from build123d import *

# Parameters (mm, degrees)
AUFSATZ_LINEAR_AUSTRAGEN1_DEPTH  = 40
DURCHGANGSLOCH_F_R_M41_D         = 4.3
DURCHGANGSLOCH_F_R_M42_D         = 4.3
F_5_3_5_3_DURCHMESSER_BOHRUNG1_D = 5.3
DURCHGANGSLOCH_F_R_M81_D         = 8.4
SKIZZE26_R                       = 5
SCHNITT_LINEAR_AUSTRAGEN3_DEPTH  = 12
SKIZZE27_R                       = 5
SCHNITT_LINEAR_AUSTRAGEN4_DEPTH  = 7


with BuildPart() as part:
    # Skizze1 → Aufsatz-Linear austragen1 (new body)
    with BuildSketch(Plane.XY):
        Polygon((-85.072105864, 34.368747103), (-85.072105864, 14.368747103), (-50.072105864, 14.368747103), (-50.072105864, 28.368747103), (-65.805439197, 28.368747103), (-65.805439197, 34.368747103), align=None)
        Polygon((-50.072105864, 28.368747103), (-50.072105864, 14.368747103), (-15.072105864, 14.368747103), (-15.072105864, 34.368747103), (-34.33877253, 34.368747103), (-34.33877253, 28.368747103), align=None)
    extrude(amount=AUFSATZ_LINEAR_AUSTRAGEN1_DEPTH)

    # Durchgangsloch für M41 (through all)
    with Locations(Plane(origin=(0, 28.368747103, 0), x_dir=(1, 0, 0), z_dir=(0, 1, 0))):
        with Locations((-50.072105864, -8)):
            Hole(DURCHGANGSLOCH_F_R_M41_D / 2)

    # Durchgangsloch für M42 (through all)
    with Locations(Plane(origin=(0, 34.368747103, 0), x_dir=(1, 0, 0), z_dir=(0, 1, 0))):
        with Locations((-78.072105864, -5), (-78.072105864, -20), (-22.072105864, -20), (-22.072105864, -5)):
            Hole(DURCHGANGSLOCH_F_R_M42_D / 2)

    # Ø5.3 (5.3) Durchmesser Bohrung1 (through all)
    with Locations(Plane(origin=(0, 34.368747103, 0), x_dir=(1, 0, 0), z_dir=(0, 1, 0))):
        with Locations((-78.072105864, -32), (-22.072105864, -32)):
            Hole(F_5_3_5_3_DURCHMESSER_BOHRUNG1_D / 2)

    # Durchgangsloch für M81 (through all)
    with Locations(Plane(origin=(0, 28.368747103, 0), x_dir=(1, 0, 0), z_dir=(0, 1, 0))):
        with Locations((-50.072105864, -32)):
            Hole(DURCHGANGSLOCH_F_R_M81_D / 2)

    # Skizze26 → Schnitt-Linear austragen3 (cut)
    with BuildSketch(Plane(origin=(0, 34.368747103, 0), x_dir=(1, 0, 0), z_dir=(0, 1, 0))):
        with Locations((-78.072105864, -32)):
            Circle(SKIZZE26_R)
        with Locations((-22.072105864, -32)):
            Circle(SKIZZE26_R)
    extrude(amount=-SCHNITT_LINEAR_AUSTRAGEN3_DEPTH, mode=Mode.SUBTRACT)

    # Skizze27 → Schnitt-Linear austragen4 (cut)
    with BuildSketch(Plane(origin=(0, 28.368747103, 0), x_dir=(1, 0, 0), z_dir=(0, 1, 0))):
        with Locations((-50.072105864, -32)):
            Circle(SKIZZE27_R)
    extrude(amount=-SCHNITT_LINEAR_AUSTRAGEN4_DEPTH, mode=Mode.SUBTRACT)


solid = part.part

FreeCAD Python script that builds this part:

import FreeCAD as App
import Part
import Sketcher

V = App.Vector
Q = App.Units.Quantity

doc = App.newDocument("Part")
body = doc.addObject("PartDesign::Body", "Body")

# Sketch on XY plane
sketch1 = body.newObject("Sketcher::SketchObject", "Sketch")
sketch1.AttachmentSupport = (doc.getObject("XY_Plane"), [""])
sketch1.MapMode = "FlatFace"
sketch1.addGeometry([
    Part.LineSegment(V(-85.072106, 34.368747, 0), V(-85.072106, 14.368747, 0)),  # 0
    Part.LineSegment(V(-85.072106, 14.368747, 0), V(-15.072106, 14.368747, 0)),  # 1
    Part.LineSegment(V(-15.072106, 14.368747, 0), V(-15.072106, 34.368747, 0)),  # 2
    Part.LineSegment(V(-15.072106, 34.368747, 0), V(-34.338773, 34.368747, 0)),  # 3
    Part.LineSegment(V(-34.338773, 34.368747, 0), V(-34.338773, 28.368747, 0)),  # 4
    Part.LineSegment(V(-34.338773, 28.368747, 0), V(-65.805439, 28.368747, 0)),  # 5
    Part.LineSegment(V(-65.805439, 28.368747, 0), V(-65.805439, 34.368747, 0)),  # 6
    Part.LineSegment(V(-65.805439, 34.368747, 0), V(-85.072106, 34.368747, 0)),  # 7
], False)
sketch1.addConstraint([
    Sketcher.Constraint("Coincident", 0, 2, 1, 1),
    Sketcher.Constraint("Coincident", 1, 2, 2, 1),
    Sketcher.Constraint("Coincident", 2, 2, 3, 1),
    Sketcher.Constraint("Coincident", 3, 2, 4, 1),
    Sketcher.Constraint("Coincident", 4, 2, 5, 1),
    Sketcher.Constraint("Coincident", 5, 2, 6, 1),
    Sketcher.Constraint("Coincident", 6, 2, 7, 1),
    Sketcher.Constraint("Coincident", 7, 2, 0, 1),
    Sketcher.Constraint("Vertical", 0),
    Sketcher.Constraint("Horizontal", 1),
    Sketcher.Constraint("Vertical", 2),
    Sketcher.Constraint("Horizontal", 3),
    Sketcher.Constraint("Vertical", 4),
    Sketcher.Constraint("Horizontal", 5),
    Sketcher.Constraint("Vertical", 6),
    Sketcher.Constraint("Horizontal", 7),
    Sketcher.Constraint("Horizontal", 3, 2, 6, 2),
    Sketcher.Constraint("Equal", 3, 7),
    Sketcher.Constraint("DistanceX", 1, 1, 1, 2, Q("70 mm")),
    Sketcher.Constraint("DistanceY", 0, 2, 0, 1, Q("20 mm")),
    Sketcher.Constraint("DistanceY", 4, 2, 4, 1, Q("6 mm")),
    Sketcher.Constraint("DistanceX", 3, 2, 3, 1, Q("19.266667 mm")),
    Sketcher.Constraint("DistanceX", 5, 2, -1, 1, Q("65.805439 mm")),
    Sketcher.Constraint("DistanceY", -1, 1, 0, 2, Q("14.368747 mm")),
])
pad1 = body.newObject("PartDesign::Pad", "Pad")
pad1.Profile = sketch1
pad1.Length = 40

# Sketch on XZ plane
sketch2 = body.newObject("Sketcher::SketchObject", "Sketch001")
sketch2.AttachmentSupport = (doc.getObject("XZ_Plane"), [""])
sketch2.MapMode = "FlatFace"
sketch2.AttachmentOffset = App.Placement(V(0, 0, -28.368747), App.Rotation())
sketch2.addGeometry(Part.Circle(V(-50.072106, 8, 0), V(0, 0, 1), 2.15), False)
sketch2.addConstraint([
    Sketcher.Constraint("Diameter", 0, Q("4.3 mm")),
    Sketcher.Constraint("DistanceY", -1, 1, 0, 3, Q("8 mm")),
    Sketcher.Constraint("DistanceX", 0, 3, -1, 1, Q("50.072106 mm")),
])
doc.recompute()
hole = body.newObject("PartDesign::Hole", "Hole")
hole.Profile = sketch2
hole.ThreadType = "None"
hole.Diameter = 4.3
hole.DepthType = "ThroughAll"
hole.Reversed = True

# Sketch on XZ plane
sketch3 = body.newObject("Sketcher::SketchObject", "Sketch002")
sketch3.AttachmentSupport = (doc.getObject("XZ_Plane"), [""])
sketch3.MapMode = "FlatFace"
sketch3.AttachmentOffset = App.Placement(V(0, 0, -34.368747), App.Rotation())
sketch3.addGeometry([
    Part.Circle(V(-78.072106, 5, 0), V(0, 0, 1), 2.15),
    Part.Circle(V(-78.072106, 20, 0), V(0, 0, 1), 2.15),
    Part.Circle(V(-22.072106, 20, 0), V(0, 0, 1), 2.15),
    Part.Circle(V(-22.072106, 5, 0), V(0, 0, 1), 2.15),
], False)
sketch3.addConstraint([
    Sketcher.Constraint("Equal", 0, 1),
    Sketcher.Constraint("Equal", 1, 2),
    Sketcher.Constraint("Equal", 2, 3),
    Sketcher.Constraint("Horizontal", 1, 3, 2, 3),
    Sketcher.Constraint("Horizontal", 0, 3, 3, 3),
    Sketcher.Constraint("Vertical", 0, 3, 1, 3),
    Sketcher.Constraint("Vertical", 2, 3, 3, 3),
    Sketcher.Constraint("Diameter", 0, Q("4.3 mm")),
    Sketcher.Constraint("DistanceY", -1, 1, 0, 3, Q("5 mm")),
    Sketcher.Constraint("DistanceY", -1, 1, 1, 3, Q("20 mm")),
    Sketcher.Constraint("DistanceX", 1, 3, 2, 3, Q("56 mm")),
    Sketcher.Constraint("DistanceX", 0, 3, -1, 1, Q("78.072106 mm")),
])
doc.recompute()
hole2 = body.newObject("PartDesign::Hole", "Hole001")
hole2.Profile = sketch3
hole2.ThreadType = "None"
hole2.Diameter = 4.3
hole2.DepthType = "ThroughAll"
hole2.Reversed = True

# Sketch on XZ plane
sketch4 = body.newObject("Sketcher::SketchObject", "Sketch003")
sketch4.AttachmentSupport = (doc.getObject("XZ_Plane"), [""])
sketch4.MapMode = "FlatFace"
sketch4.AttachmentOffset = App.Placement(V(0, 0, -34.368747), App.Rotation())
sketch4.addGeometry([
    Part.Circle(V(-78.072106, 32, 0), V(0, 0, 1), 2.65),
    Part.Circle(V(-22.072106, 32, 0), V(0, 0, 1), 2.65),
], False)
sketch4.addConstraint([
    Sketcher.Constraint("Equal", 0, 1),
    Sketcher.Constraint("Horizontal", 0, 3, 1, 3),
    Sketcher.Constraint("Diameter", 0, Q("5.3 mm")),
    Sketcher.Constraint("DistanceY", -1, 1, 0, 3, Q("32 mm")),
    Sketcher.Constraint("DistanceX", 0, 3, 1, 3, Q("56 mm")),
    Sketcher.Constraint("DistanceX", 0, 3, -1, 1, Q("78.072106 mm")),
])
doc.recompute()
hole3 = body.newObject("PartDesign::Hole", "Hole002")
hole3.Profile = sketch4
hole3.ThreadType = "None"
hole3.Diameter = 5.3
hole3.DepthType = "ThroughAll"
hole3.Reversed = True

# Sketch on XZ plane
sketch5 = body.newObject("Sketcher::SketchObject", "Sketch004")
sketch5.AttachmentSupport = (doc.getObject("XZ_Plane"), [""])
sketch5.MapMode = "FlatFace"
sketch5.AttachmentOffset = App.Placement(V(0, 0, -28.368747), App.Rotation())
sketch5.addGeometry(Part.Circle(V(-50.072106, 32, 0), V(0, 0, 1), 4.2), False)
sketch5.addConstraint([
    Sketcher.Constraint("Diameter", 0, Q("8.4 mm")),
    Sketcher.Constraint("DistanceY", -1, 1, 0, 3, Q("32 mm")),
    Sketcher.Constraint("DistanceX", 0, 3, -1, 1, Q("50.072106 mm")),
])
doc.recompute()
hole4 = body.newObject("PartDesign::Hole", "Hole003")
hole4.Profile = sketch5
hole4.ThreadType = "None"
hole4.Diameter = 8.4
hole4.DepthType = "ThroughAll"
hole4.Reversed = True

# Sketch on XZ plane
sketch6 = body.newObject("Sketcher::SketchObject", "Sketch005")
sketch6.AttachmentSupport = (doc.getObject("XZ_Plane"), [""])
sketch6.MapMode = "FlatFace"
sketch6.AttachmentOffset = App.Placement(V(0, 0, -34.368747), App.Rotation())
sketch6.addGeometry([
    Part.Circle(V(-78.072106, 32, 0), V(0, 0, 1), 5),
    Part.Circle(V(-22.072106, 32, 0), V(0, 0, 1), 5),
], False)
sketch6.addConstraint([
    Sketcher.Constraint("Equal", 0, 1),
    Sketcher.Constraint("Horizontal", 0, 3, 1, 3),
    Sketcher.Constraint("Diameter", 0, Q("10 mm")),
    Sketcher.Constraint("DistanceY", -1, 1, 0, 3, Q("32 mm")),
    Sketcher.Constraint("DistanceX", 0, 3, 1, 3, Q("56 mm")),
    Sketcher.Constraint("DistanceX", 0, 3, -1, 1, Q("78.072106 mm")),
])
pocket1 = body.newObject("PartDesign::Pocket", "Pocket")
pocket1.Profile = sketch6
pocket1.Length = 12
pocket1.Reversed = True

# Sketch on XZ plane
sketch7 = body.newObject("Sketcher::SketchObject", "Sketch006")
sketch7.AttachmentSupport = (doc.getObject("XZ_Plane"), [""])
sketch7.MapMode = "FlatFace"
sketch7.AttachmentOffset = App.Placement(V(0, 0, -28.368747), App.Rotation())
sketch7.addGeometry(Part.Circle(V(-50.072106, 32, 0), V(0, 0, 1), 5), False)
sketch7.addConstraint([
    Sketcher.Constraint("Diameter", 0, Q("10 mm")),
    Sketcher.Constraint("DistanceY", -1, 1, 0, 3, Q("32 mm")),
    Sketcher.Constraint("DistanceX", 0, 3, -1, 1, Q("50.072106 mm")),
])
pocket2 = body.newObject("PartDesign::Pocket", "Pocket001")
pocket2.Profile = sketch7
pocket2.Length = 7
pocket2.Reversed = True

doc.recompute()
